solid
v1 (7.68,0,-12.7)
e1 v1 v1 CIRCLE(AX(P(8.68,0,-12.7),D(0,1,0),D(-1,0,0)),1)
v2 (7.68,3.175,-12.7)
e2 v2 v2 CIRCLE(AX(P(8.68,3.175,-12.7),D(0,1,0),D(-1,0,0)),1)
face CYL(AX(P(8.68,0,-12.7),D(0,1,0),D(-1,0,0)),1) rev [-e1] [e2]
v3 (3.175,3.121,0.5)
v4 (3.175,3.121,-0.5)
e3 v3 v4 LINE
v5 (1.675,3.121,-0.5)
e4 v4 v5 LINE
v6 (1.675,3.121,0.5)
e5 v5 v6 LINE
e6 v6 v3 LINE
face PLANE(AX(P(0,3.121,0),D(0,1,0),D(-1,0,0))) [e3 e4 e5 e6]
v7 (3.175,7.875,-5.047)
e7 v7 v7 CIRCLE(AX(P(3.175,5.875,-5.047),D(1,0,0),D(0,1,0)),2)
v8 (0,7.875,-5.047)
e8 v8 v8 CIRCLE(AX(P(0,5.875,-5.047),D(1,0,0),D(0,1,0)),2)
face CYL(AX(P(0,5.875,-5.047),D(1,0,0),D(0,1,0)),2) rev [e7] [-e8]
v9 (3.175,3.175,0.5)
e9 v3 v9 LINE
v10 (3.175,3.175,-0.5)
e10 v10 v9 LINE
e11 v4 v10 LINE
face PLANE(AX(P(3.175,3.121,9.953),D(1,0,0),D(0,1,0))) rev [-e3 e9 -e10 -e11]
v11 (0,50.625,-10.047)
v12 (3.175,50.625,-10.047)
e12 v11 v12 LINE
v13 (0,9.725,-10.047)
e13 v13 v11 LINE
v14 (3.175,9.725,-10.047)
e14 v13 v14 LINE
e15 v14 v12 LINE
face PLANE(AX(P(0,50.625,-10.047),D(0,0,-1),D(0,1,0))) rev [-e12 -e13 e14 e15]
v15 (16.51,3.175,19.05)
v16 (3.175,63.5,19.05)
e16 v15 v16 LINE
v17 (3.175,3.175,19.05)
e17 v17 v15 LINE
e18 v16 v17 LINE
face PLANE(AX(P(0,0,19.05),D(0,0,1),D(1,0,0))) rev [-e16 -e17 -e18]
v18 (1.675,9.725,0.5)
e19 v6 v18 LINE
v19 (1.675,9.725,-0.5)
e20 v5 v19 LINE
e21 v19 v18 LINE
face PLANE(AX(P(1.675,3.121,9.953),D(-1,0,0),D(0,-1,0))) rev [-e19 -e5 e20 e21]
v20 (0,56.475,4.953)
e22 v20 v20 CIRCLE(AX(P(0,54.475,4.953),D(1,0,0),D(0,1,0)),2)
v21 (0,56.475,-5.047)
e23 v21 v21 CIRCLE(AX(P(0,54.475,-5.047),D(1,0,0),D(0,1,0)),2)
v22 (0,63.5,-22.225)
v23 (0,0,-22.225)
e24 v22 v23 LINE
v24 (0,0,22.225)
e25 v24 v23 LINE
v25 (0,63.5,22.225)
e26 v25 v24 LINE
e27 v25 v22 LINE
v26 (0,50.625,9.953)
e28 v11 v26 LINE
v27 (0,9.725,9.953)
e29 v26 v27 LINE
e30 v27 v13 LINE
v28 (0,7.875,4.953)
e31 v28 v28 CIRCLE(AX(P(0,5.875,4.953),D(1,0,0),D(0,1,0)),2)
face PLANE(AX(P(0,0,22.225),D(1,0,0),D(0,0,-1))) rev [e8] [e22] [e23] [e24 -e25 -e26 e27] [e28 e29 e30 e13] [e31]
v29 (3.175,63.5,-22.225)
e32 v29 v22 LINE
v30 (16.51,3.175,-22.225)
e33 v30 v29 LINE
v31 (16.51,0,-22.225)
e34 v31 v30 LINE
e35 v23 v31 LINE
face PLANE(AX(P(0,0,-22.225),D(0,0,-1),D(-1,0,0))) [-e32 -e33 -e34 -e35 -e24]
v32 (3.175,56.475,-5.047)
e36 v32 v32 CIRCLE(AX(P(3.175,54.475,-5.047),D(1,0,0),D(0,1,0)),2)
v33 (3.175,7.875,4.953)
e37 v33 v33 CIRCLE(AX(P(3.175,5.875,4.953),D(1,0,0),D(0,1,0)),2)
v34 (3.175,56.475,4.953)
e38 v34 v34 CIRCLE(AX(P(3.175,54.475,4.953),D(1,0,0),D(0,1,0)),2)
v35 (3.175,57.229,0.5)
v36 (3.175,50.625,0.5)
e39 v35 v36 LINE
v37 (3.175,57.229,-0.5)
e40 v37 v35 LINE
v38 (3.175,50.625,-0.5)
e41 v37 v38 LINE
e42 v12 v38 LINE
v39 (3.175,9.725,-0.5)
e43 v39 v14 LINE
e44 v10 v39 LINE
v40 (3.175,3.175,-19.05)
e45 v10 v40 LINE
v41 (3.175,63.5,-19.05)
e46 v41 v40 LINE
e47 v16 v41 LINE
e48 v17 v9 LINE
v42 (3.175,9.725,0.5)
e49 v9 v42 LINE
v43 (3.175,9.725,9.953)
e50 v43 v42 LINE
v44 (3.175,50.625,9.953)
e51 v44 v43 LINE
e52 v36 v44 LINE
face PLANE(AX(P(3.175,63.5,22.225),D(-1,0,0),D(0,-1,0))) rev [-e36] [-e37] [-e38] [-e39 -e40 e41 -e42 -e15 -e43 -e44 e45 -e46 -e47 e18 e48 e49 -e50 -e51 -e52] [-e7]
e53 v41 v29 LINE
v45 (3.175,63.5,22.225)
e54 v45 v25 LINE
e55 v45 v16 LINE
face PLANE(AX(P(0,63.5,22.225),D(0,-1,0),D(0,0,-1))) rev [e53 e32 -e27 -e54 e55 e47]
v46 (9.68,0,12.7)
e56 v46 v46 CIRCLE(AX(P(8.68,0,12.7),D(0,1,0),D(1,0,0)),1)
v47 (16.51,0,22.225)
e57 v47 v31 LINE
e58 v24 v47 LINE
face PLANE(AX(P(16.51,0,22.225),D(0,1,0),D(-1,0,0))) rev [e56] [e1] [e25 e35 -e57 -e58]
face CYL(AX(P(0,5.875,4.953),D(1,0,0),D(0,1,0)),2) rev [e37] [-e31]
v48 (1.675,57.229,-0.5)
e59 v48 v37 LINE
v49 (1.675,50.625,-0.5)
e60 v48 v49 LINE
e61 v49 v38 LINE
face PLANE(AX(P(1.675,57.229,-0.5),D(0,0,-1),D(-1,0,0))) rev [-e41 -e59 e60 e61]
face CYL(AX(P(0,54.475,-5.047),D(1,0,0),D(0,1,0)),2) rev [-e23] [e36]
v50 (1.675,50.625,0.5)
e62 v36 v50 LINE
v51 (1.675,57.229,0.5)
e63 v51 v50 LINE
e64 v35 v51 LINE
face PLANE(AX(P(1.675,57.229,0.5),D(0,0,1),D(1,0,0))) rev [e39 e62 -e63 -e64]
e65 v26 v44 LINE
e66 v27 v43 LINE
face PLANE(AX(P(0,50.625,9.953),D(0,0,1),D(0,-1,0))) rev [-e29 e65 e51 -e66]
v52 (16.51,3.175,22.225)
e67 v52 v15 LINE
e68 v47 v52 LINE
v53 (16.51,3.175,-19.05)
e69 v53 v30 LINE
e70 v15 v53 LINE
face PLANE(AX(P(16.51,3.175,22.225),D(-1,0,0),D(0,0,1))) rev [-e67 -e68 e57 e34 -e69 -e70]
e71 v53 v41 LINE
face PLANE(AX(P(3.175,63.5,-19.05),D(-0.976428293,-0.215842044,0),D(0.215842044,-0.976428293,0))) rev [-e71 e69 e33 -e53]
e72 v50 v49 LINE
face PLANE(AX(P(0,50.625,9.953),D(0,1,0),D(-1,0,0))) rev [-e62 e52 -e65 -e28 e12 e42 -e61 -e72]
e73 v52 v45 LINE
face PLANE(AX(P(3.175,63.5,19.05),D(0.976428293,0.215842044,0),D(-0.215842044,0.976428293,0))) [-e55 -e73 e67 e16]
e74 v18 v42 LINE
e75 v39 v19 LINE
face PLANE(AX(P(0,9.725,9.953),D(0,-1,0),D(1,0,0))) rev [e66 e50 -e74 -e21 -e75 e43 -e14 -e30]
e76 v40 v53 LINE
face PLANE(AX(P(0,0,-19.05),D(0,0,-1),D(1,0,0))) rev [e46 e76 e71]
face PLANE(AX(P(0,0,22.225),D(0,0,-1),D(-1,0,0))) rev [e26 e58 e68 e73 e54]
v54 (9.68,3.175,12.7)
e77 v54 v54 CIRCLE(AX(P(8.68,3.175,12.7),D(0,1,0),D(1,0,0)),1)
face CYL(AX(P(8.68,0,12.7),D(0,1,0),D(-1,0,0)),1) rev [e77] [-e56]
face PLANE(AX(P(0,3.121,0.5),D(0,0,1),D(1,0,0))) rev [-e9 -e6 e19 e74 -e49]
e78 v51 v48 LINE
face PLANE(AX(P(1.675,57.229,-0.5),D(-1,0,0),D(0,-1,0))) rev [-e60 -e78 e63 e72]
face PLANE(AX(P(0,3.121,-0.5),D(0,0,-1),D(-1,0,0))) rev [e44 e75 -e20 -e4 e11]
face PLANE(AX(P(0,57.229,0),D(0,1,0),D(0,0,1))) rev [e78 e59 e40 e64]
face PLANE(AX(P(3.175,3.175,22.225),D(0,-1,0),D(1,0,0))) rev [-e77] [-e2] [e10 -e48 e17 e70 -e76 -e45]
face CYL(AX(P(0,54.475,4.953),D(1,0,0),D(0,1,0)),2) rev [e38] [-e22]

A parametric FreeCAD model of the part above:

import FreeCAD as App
import Part
import Sketcher

V = App.Vector
Q = App.Units.Quantity

doc = App.newDocument("Part")
body = doc.addObject("PartDesign::Body", "Body")

sketch1 = body.newObject("Sketcher::SketchObject", "Sketch")
sketch1.AttachmentSupport = (doc.getObject("XY_Plane"), [""])
sketch1.MapMode = "FlatFace"
sketch1.addGeometry([
    Part.LineSegment(V(0, 63.5, 0), V(0, 0, 0)),
    Part.LineSegment(V(0, 0, 0), V(16.5, 0, 0)),
    Part.LineSegment(V(16.5, 0, 0), V(16.5, 3.2, 0)),
    Part.LineSegment(V(16.5, 3.2, 0), V(3.2, 3.2, 0)),
    Part.LineSegment(V(3.2, 3.2, 0), V(3.2, 63.5, 0)),
    Part.LineSegment(V(3.2, 63.5, 0), V(0, 63.5, 0)),
], False)
sketch1.addConstraint([
    Sketcher.Constraint("Coincident", 0, 2, 1, 1),
    Sketcher.Constraint("Coincident", 1, 2, 2, 1),
    Sketcher.Constraint("Coincident", 2, 2, 3, 1),
    Sketcher.Constraint("Coincident", 3, 2, 4, 1),
    Sketcher.Constraint("Coincident", 4, 2, 5, 1),
    Sketcher.Constraint("Coincident", 5, 2, 0, 1),
    Sketcher.Constraint("Vertical", 0),
    Sketcher.Constraint("Horizontal", 1),
    Sketcher.Constraint("Vertical", 2),
    Sketcher.Constraint("Horizontal", 3),
    Sketcher.Constraint("Vertical", 4),
    Sketcher.Constraint("Horizontal", 5),
    Sketcher.Constraint("Coincident", 0, 2, -1, 1),
    Sketcher.Constraint("Equal", 5, 2),
    Sketcher.Constraint("DistanceY", 0, 2, 0, 1, Q("2.5 in")),
    Sketcher.Constraint("DistanceX", 1, 1, 1, 2, Q("0.65 in")),
    Sketcher.Constraint("DistanceX", 3, 2, 3, 1, Q("0.525 in")),
])
pad1 = body.newObject("PartDesign::Pad", "Pad")
pad1.Profile = sketch1
pad1.Length = Q("1.75 in")
pad1.Midplane = True

sketch2 = body.newObject("Sketcher::SketchObject", "Sketch001")
sketch2.AttachmentSupport = (doc.getObject("XY_Plane"), [""])
sketch2.MapMode = "FlatFace"
sketch2.AttachmentOffset = App.Placement(V(0, 0, 0.875 * 25.4), App.Rotation())
sketch2.addGeometry([
    Part.LineSegment(V(17, 3, 0), V(3, 64, 0)),
    Part.LineSegment(V(3, 64, 0), V(3, 3, 0)),
    Part.LineSegment(V(3, 3, 0), V(17, 3, 0)),
], False)
sketch2.addConstraint([
    Sketcher.Constraint("Coincident", 0, 2, 1, 1),
    Sketcher.Constraint("Coincident", 1, 2, 2, 1),
    Sketcher.Constraint("Coincident", 2, 2, 0, 1),
    Sketcher.Constraint("Vertical", 1),
    Sketcher.Constraint("Horizontal", 2),
    Sketcher.Constraint("DistanceY", -1, 1, 0, 2, Q("2.5 in")),
    Sketcher.Constraint("DistanceX", 2, 1, 2, 2, Q("0.525 in")),
    Sketcher.Constraint("DistanceY", 1, 2, 1, 1, Q("2.375 in")),
    Sketcher.Constraint("DistanceX", -1, 1, 2, 2, Q("0.65 in")),
])
pad2 = body.newObject("PartDesign::Pad", "Pad001")
pad2.Profile = sketch2
pad2.Length = Q("0.125 in")
pad2.Reversed = True
doc.recompute()

mirrored = body.newObject("PartDesign::Mirrored", "Mirrored")
mirrored.Originals = [pad2]
mirrored.MirrorPlane = (doc.getObject("XY_Plane"), [""])
body.Tip = mirrored

sketch3 = body.newObject("Sketcher::SketchObject", "Sketch002")
sketch3.AttachmentSupport = (doc.getObject("XZ_Plane"), [""])
sketch3.MapMode = "FlatFace"
sketch3.AttachmentOffset = App.Placement(V(0, 0, -0.125 * 25.4), App.Rotation())
sketch3.addGeometry([
    Part.Circle(V(8.7, -12.7, 0), V(0, 0, 1), 1),
    Part.Circle(V(8.7, 12.7, 0), V(0, 0, 1), 1),
], False)
sketch3.addConstraint([
    Sketcher.Constraint("Equal", 0, 1),
    Sketcher.Constraint("Symmetric", 0, 3, 1, 3, -1),
    Sketcher.Constraint("DistanceY", 0, 3, 1, 3, Q("1 in")),
    Sketcher.Constraint("Diameter", 0, Q("2 mm")),
    Sketcher.Constraint("DistanceX", -1, 1, 0, 3, Q("8.68 mm")),
])
pocket1 = body.newObject("PartDesign::Pocket", "Pocket")
pocket1.Profile = sketch3
pocket1.Type = "ThroughAll"
pocket1.Reversed = True

sketch4 = body.newObject("Sketcher::SketchObject", "Sketch003")
sketch4.AttachmentSupport = (doc.getObject("YZ_Plane"), [""])
sketch4.MapMode = "FlatFace"
sketch4.AttachmentOffset = App.Placement(V(0, 0, 0.125 * 25.4), App.Rotation())
sketch4.addGeometry([
    Part.Circle(V(5.9, 5, 0), V(0, 0, 1), 2),
    Part.Circle(V(5.9, -5, 0), V(0, 0, 1), 2),
    Part.Circle(V(54.5, 5, 0), V(0, 0, 1), 2),
    Part.Circle(V(54.5, -5, 0), V(0, 0, 1), 2),
], False)
sketch4.addConstraint([
    Sketcher.Constraint("Equal", 0, 1),
    Sketcher.Constraint("Equal", 1, 2),
    Sketcher.Constraint("Equal", 2, 3),
    Sketcher.Constraint("Horizontal", 0, 3, 2, 3),
    Sketcher.Constraint("Horizontal", 1, 3, 3, 3),
    Sketcher.Constraint("Vertical", 0, 3, 1, 3),
    Sketcher.Constraint("Vertical", 2, 3, 3, 3),
    Sketcher.Constraint("Diameter", 0, Q("4 mm")),
    Sketcher.Constraint("DistanceY", -1, 1, 0, 3, Q("0.195 in")),
    Sketcher.Constraint("DistanceX", -1, 1, 0, 3, Q("5.875 mm")),
    Sketcher.Constraint("DistanceY", 1, 3, -1, 1, Q("5.047 mm")),
    Sketcher.Constraint("DistanceX", -1, 1, 2, 3, Q("54.475 mm")),
])
pocket2 = body.newObject("PartDesign::Pocket", "Pocket001")
pocket2.Profile = sketch4
pocket2.Type = "ThroughAll"

sketch5 = body.newObject("Sketcher::SketchObject", "Sketch004")
sketch5.AttachmentSupport = (doc.getObject("YZ_Plane"), [""])
sketch5.MapMode = "FlatFace"
sketch5.AttachmentOffset = App.Placement(V(0, 0, 0.125 * 25.4), App.Rotation())
sketch5.addGeometry([
    Part.LineSegment(V(51, 10, 0), V(10, 10, 0)),
    Part.LineSegment(V(10, 10, 0), V(10, -10, 0)),
    Part.LineSegment(V(10, -10, 0), V(51, -10, 0)),
    Part.LineSegment(V(51, -10, 0), V(51, 10, 0)),
], False)
sketch5.addConstraint([
    Sketcher.Constraint("Coincident", 0, 2, 1, 1),
    Sketcher.Constraint("Coincident", 1, 2, 2, 1),
    Sketcher.Constraint("Coincident", 2, 2, 3, 1),
    Sketcher.Constraint("Coincident", 3, 2, 0, 1),
    Sketcher.Constraint("Horizontal", 0),
    Sketcher.Constraint("Vertical", 1),
    Sketcher.Constraint("Horizontal", 2),
    Sketcher.Constraint("Vertical", 3),
    Sketcher.Constraint("DistanceX", 0, 2, 0, 1, Q("40.9 mm")),
    Sketcher.Constraint("DistanceY", 1, 2, 1, 1, Q("20 mm")),
    Sketcher.Constraint("DistanceX", -1, 1, 0, 2, Q("9.725 mm")),
    Sketcher.Constraint("DistanceY", -1, 1, 0, 2, Q("9.953 mm")),
])
pocket3 = body.newObject("PartDesign::Pocket", "Pocket002")
pocket3.Profile = sketch5
pocket3.Type = "ThroughAll"

sketch6 = body.newObject("Sketcher::SketchObject", "Sketch005")
sketch6.AttachmentSupport = (doc.getObject("XZ_Plane"), [""])
sketch6.MapMode = "FlatFace"
sketch6.AttachmentOffset = App.Placement(V(0, 0, -50.625), App.Rotation())
sketch6.addGeometry([
    Part.LineSegment(V(1.7, 0.5, 0), V(1.7, -0.5, 0)),
    Part.LineSegment(V(1.7, -0.5, 0), V(3.2, -0.5, 0)),
    Part.LineSegment(V(3.2, -0.5, 0), V(3.2, 0.5, 0)),
    Part.LineSegment(V(3.2, 0.5, 0), V(1.7, 0.5, 0)),
], False)
sketch6.addConstraint([
    Sketcher.Constraint("Coincident", 0, 2, 1, 1),
    Sketcher.Constraint("Coincident", 1, 2, 2, 1),
    Sketcher.Constraint("Coincident", 2, 2, 3, 1),
    Sketcher.Constraint("Coincident", 3, 2, 0, 1),
    Sketcher.Constraint("Vertical", 0),
    Sketcher.Constraint("Horizontal", 1),
    Sketcher.Constraint("Vertical", 2),
    Sketcher.Constraint("Horizontal", 3),
    Sketcher.Constraint("DistanceX", -1, 1, 1, 2, Q("0.125 in")),
    Sketcher.Constraint("DistanceX", 1, 1, 1, 2, Q("1.5 mm")),
    Sketcher.Constraint("DistanceY", 0, 2, 0, 1, Q("1 mm")),
    Sketcher.Constraint("DistanceY", 0, 2, -1, 1, Q("0.5 mm")),
])
pocket4 = body.newObject("PartDesign::Pocket", "Pocket003")
pocket4.Profile = sketch6
pocket4.Length = Q("0.26 in")

sketch7 = body.newObject("Sketcher::SketchObject", "Sketch006")
sketch7.AttachmentSupport = (doc.getObject("XZ_Plane"), [""])
sketch7.MapMode = "FlatFace"
sketch7.AttachmentOffset = App.Placement(V(0, 0, -9.725), App.Rotation())
sketch7.addGeometry([
    Part.LineSegment(V(1.7, 0.5, 0), V(1.7, -0.5, 0)),
    Part.LineSegment(V(1.7, -0.5, 0), V(3.2, -0.5, 0)),
    Part.LineSegment(V(3.2, -0.5, 0), V(3.2, 0.5, 0)),
    Part.LineSegment(V(3.2, 0.5, 0), V(1.7, 0.5, 0)),
], False)
sketch7.addConstraint([
    Sketcher.Constraint("Coincident", 0, 2, 1, 1),
    Sketcher.Constraint("Coincident", 1, 2, 2, 1),
    Sketcher.Constraint("Coincident", 2, 2, 3, 1),
    Sketcher.Constraint("Coincident", 3, 2, 0, 1),
    Sketcher.Constraint("Vertical", 0),
    Sketcher.Constraint("Horizontal", 1),
    Sketcher.Constraint("Vertical", 2),
    Sketcher.Constraint("Horizontal", 3),
    Sketcher.Constraint("DistanceX", -1, 1, 1, 2, Q("0.125 in")),
    Sketcher.Constraint("DistanceX", 1, 1, 1, 2, Q("1.5 mm")),
    Sketcher.Constraint("DistanceY", 0, 2, 0, 1, Q("1 mm")),
    Sketcher.Constraint("DistanceY", 0, 2, -1, 1, Q("0.5 mm")),
])
pocket5 = body.newObject("PartDesign::Pocket", "Pocket004")
pocket5.Profile = sketch7
pocket5.Length = Q("0.26 in")
pocket5.Reversed = True

doc.recompute()
